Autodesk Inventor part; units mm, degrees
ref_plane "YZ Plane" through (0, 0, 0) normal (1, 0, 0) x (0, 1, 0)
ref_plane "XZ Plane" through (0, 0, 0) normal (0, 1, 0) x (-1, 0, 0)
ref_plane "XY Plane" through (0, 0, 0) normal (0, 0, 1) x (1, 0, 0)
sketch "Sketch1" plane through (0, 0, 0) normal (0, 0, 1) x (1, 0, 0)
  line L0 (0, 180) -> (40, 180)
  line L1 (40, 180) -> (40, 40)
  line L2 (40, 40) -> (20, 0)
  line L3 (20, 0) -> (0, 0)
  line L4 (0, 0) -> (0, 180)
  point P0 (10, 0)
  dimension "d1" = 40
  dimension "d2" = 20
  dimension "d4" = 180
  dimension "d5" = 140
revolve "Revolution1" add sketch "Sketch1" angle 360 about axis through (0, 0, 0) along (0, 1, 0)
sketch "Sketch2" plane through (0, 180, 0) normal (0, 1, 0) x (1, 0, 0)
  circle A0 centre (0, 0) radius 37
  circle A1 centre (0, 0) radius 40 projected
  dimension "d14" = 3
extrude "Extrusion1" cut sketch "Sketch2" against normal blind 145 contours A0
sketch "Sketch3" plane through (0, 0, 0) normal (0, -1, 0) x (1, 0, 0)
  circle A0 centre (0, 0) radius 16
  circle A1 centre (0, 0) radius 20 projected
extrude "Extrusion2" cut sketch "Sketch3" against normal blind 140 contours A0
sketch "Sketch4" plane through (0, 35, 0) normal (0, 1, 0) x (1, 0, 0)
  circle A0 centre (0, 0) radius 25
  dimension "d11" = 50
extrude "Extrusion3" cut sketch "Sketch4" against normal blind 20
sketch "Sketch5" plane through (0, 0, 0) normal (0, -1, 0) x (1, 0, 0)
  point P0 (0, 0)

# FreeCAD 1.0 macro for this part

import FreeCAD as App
import Part
import Sketcher

doc = App.newDocument("Part")
body = doc.addObject("PartDesign::Body", "Body")

# Sketch on XY plane
sketch1 = body.newObject("Sketcher::SketchObject", "Sketch")
sketch1.AttachmentSupport = (doc.getObject("XY_Plane"), [""])
sketch1.MapMode = "FlatFace"
sketch1.addGeometry(Part.LineSegment(App.Vector(40, 180, 0), App.Vector(0, 180, 0)), False)
sketch1.addGeometry(Part.LineSegment(App.Vector(0, 180, 0), App.Vector(0, 0, 0)), False)
sketch1.addGeometry(Part.LineSegment(App.Vector(0, 0, 0), App.Vector(20, 0, 0)), False)
sketch1.addGeometry(Part.LineSegment(App.Vector(20, 0, 0), App.Vector(40, 40, 0)), False)
sketch1.addGeometry(Part.LineSegment(App.Vector(40, 40, 0), App.Vector(40, 180, 0)), False)
sketch1.addConstraint(Sketcher.Constraint("Coincident", 0, 2, 1, 1))
sketch1.addConstraint(Sketcher.Constraint("Coincident", 1, 2, 2, 1))
sketch1.addConstraint(Sketcher.Constraint("Coincident", 2, 2, 3, 1))
sketch1.addConstraint(Sketcher.Constraint("Coincident", 3, 2, 4, 1))
sketch1.addConstraint(Sketcher.Constraint("Coincident", 4, 2, 0, 1))
sketch1.addConstraint(Sketcher.Constraint("Horizontal", 0))
sketch1.addConstraint(Sketcher.Constraint("Vertical", 1))
sketch1.addConstraint(Sketcher.Constraint("Horizontal", 2))
sketch1.addConstraint(Sketcher.Constraint("Vertical", 4))
sketch1.addConstraint(Sketcher.Constraint("Coincident", 1, 2, -1, 1))
sketch1.addConstraint(Sketcher.Constraint("DistanceX", 0, 2, 0, 1, 40.0))
sketch1.addConstraint(Sketcher.Constraint("DistanceX", 2, 1, 2, 2, 20.0))
sketch1.addConstraint(Sketcher.Constraint("DistanceY", 1, 2, 1, 1, 180.0))
sketch1.addConstraint(Sketcher.Constraint("DistanceY", 4, 1, 4, 2, 140.0))
revolution = body.newObject("PartDesign::Revolution", "Revolution")
revolution.Profile = sketch1
revolution.ReferenceAxis = (sketch1, ["V_Axis"])
revolution.Angle = 360

# Sketch on XZ plane
sketch2 = body.newObject("Sketcher::SketchObject", "Sketch001")
sketch2.AttachmentSupport = (doc.getObject("XZ_Plane"), [""])
sketch2.MapMode = "FlatFace"
sketch2.AttachmentOffset = App.Placement(App.Vector(0, 0, -180), App.Rotation())
sketch2.addGeometry(Part.Circle(App.Vector(0, 0, 0), App.Vector(0, 0, 1), 37), False)
sketch2.addConstraint(Sketcher.Constraint("Coincident", 0, 3, -1, 1))
sketch2.addConstraint(Sketcher.Constraint("Diameter", 0, 74.0))
pocket1 = body.newObject("PartDesign::Pocket", "Pocket")
pocket1.Profile = sketch2
pocket1.Length = 145
pocket1.Reversed = True

# Sketch on XZ plane
sketch3 = body.newObject("Sketcher::SketchObject", "Sketch002")
sketch3.AttachmentSupport = (doc.getObject("XZ_Plane"), [""])
sketch3.MapMode = "FlatFace"
sketch3.addGeometry(Part.Circle(App.Vector(0, 0, 0), App.Vector(0, 0, 1), 16), False)
sketch3.addConstraint(Sketcher.Constraint("Coincident", 0, 3, -1, 1))
sketch3.addConstraint(Sketcher.Constraint("Diameter", 0, 32.0))
pocket2 = body.newObject("PartDesign::Pocket", "Pocket001")
pocket2.Profile = sketch3
pocket2.Length = 140

# Sketch on XZ plane
sketch4 = body.newObject("Sketcher::SketchObject", "Sketch003")
sketch4.AttachmentSupport = (doc.getObject("XZ_Plane"), [""])
sketch4.MapMode = "FlatFace"
sketch4.AttachmentOffset = App.Placement(App.Vector(0, 0, -35), App.Rotation())
sketch4.addGeometry(Part.Circle(App.Vector(0, 0, 0), App.Vector(0, 0, 1), 25), False)
sketch4.addConstraint(Sketcher.Constraint("Coincident", 0, 3, -1, 1))
sketch4.addConstraint(Sketcher.Constraint("Diameter", 0, 50.0))
pocket3 = body.newObject("PartDesign::Pocket", "Pocket002")
pocket3.Profile = sketch4
pocket3.Length = 20
pocket3.Reversed = True

doc.recompute()
